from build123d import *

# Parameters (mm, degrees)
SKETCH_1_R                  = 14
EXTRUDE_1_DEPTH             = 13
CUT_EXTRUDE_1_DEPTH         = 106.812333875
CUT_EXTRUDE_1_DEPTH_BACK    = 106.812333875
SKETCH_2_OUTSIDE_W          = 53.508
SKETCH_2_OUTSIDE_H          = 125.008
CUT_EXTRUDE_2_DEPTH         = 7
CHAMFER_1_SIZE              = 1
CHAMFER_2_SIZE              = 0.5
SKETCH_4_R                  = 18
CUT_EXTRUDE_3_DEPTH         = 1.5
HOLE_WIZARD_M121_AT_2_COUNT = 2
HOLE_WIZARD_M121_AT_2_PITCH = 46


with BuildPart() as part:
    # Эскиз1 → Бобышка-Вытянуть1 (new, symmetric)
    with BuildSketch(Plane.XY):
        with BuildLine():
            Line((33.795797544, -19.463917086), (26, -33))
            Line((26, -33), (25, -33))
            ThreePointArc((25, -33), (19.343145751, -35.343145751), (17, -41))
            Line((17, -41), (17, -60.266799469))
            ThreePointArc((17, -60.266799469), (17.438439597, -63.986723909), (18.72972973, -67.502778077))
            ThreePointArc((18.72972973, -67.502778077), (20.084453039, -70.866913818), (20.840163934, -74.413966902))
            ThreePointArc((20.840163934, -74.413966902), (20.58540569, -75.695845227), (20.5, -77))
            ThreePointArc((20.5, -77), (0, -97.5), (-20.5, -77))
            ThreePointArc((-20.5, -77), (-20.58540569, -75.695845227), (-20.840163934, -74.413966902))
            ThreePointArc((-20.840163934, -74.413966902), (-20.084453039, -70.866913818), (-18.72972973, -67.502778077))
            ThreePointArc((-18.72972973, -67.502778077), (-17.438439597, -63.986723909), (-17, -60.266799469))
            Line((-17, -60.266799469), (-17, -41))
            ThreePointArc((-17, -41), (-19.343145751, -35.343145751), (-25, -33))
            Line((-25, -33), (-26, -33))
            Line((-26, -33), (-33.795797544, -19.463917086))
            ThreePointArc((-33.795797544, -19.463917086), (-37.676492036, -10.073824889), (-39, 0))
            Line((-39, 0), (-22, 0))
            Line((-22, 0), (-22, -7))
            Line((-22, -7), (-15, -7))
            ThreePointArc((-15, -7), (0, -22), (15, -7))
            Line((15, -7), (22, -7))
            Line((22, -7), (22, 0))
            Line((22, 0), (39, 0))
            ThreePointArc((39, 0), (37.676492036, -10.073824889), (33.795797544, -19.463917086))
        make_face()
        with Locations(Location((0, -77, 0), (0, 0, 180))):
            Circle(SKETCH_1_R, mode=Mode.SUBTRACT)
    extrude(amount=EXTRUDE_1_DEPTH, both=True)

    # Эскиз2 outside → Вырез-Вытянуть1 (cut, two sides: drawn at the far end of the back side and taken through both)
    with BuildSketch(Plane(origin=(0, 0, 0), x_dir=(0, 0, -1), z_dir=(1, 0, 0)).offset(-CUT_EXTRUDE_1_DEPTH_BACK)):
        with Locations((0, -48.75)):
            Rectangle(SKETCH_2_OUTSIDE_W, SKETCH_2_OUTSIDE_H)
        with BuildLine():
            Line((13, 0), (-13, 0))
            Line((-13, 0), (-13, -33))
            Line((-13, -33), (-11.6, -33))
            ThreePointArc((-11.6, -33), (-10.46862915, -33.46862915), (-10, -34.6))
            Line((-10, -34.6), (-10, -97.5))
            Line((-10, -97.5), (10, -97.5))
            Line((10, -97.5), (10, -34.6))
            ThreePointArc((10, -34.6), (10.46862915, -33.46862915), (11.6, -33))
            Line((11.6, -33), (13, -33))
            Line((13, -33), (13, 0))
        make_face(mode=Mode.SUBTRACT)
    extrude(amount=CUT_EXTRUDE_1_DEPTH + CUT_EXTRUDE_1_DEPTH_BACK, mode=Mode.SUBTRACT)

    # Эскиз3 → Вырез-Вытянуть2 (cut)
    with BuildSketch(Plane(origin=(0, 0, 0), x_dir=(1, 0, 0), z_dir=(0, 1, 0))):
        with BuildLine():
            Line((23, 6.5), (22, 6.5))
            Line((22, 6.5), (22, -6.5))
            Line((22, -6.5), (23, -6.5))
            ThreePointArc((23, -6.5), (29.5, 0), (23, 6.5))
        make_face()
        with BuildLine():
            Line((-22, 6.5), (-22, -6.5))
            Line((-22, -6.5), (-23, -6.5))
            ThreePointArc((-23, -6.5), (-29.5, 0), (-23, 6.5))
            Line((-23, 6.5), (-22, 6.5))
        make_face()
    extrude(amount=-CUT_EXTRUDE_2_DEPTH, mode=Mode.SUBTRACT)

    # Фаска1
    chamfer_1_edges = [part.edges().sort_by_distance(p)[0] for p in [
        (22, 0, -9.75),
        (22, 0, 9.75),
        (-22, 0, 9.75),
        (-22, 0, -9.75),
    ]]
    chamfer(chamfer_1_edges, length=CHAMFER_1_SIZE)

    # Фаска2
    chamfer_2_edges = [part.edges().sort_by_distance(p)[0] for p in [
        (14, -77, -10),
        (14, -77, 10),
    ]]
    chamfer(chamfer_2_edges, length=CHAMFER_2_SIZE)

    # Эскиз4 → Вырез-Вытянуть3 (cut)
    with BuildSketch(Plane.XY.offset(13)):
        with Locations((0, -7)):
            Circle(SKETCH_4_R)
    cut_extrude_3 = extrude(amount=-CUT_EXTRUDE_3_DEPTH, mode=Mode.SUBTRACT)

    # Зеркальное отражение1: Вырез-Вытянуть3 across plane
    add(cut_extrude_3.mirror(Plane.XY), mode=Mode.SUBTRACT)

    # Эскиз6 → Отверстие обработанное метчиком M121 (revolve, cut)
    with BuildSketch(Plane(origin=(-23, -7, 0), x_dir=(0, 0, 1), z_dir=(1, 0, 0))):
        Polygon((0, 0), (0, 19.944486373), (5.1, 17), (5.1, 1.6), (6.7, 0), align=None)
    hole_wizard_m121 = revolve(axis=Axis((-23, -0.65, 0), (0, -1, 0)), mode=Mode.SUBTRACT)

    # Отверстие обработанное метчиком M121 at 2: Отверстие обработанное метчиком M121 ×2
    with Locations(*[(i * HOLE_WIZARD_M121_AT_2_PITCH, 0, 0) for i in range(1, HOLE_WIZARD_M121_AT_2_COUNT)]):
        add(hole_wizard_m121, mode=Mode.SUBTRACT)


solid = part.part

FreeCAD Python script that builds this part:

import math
import FreeCAD as App
import Part
import Sketcher

V = App.Vector
Q = App.Units.Quantity


def edges_at(feature, points):
    """Names of the edges that pass closest to the given points."""
    edges = feature.Shape.Edges
    near = lambda p: min(range(len(edges)), key=lambda i: edges[i].distToShape(Part.Vertex(*p))[0])
    return sorted({f"Edge{near(p) + 1}" for p in points})


def add_polygon(sketch, points):
    """Adds a closed chain of lines whose ends are joined by coincident constraints."""
    first, n = sketch.GeometryCount, len(points)
    for a, b in zip(points, points[1:] + points[:1]):
        sketch.addGeometry(Part.LineSegment(App.Vector(*a, 0), App.Vector(*b, 0)), False)
    for i in range(n):
        sketch.addConstraint(Sketcher.Constraint("Coincident", first + i, 2, first + (i + 1) % n, 1))

doc = App.newDocument("Part")
params = doc.addObject("Spreadsheet::Sheet", "Params")
for row, (alias, value) in enumerate([
    ("sketch1_diameter", "28 mm"),
    ("sketch1_radius", "39 mm"),
    ("sketch1_radius2", "15 mm"),
    ("sketch1_radius3", "8 mm"),
    ("sketch1_radius4", "16 mm"),
    ("pad1_length", "26 mm"),
    ("sketch2_radius", "1.6 mm"),
    ("sketch2_width", "33 mm"),
    ("sketch2_height", "26 mm"),
    ("sketch2_height2", "20 mm"),
    ("sketch2_width2", "62.9 mm"),
    ("sketch3_radius", "6.5 mm"),
    ("sketch3_width", "1 mm"),
    ("pocket2_length", "7 mm"),
    ("chamfer_size", "1 mm"),
    ("chamfer2_size", "0.5 mm"),
    ("sketch4_diameter", "36 mm"),
    ("pocket3_length", "1.5 mm"),
    ("sketch5_width", "15.4 mm"),
    ("sketch5_height", "6.7 mm"),
    ("groove_angle", "360 deg"),
    ("linearpattern_pitch", "46 mm"),
], start=1):
    params.set(f"A{row}", alias)
    params.set(f"B{row}", "=" + value)
    params.setAlias(f"B{row}", alias)

body = doc.addObject("PartDesign::Body", "Body")

# Sketch on XY plane
sketch1 = body.newObject("Sketcher::SketchObject", "Sketch")
sketch1.AttachmentSupport = (doc.getObject("XY_Plane"), [""])
sketch1.MapMode = "FlatFace"
sketch1.addGeometry(Part.LineSegment(V(26, -33, 0), V(33.8, -19.5, 0)), False)
sketch1.addGeometry(Part.ArcOfCircle(Part.Circle(V(0, 0, 0), V(0, 0, 1), 39), math.radians(-30), math.radians(0)), False)
sketch1.addGeometry(Part.LineSegment(V(39, 0, 0), V(22, 0, 0)), False)
sketch1.addGeometry(Part.LineSegment(V(22, 0, 0), V(22, -7, 0)), False)
sketch1.addGeometry(Part.LineSegment(V(22, -7, 0), V(15, -7, 0)), False)
sketch1.addGeometry(Part.ArcOfCircle(Part.Circle(V(0, -7, 0), V(0, 0, 1), 15), math.radians(180), math.radians(360)), False)
sketch1.addGeometry(Part.LineSegment(V(-15, -7, 0), V(-22, -7, 0)), False)
sketch1.addGeometry(Part.LineSegment(V(-22, -7, 0), V(-22, 0, 0)), False)
sketch1.addGeometry(Part.LineSegment(V(-22, 0, 0), V(-39, 0, 0)), False)
sketch1.addGeometry(Part.ArcOfCircle(Part.Circle(V(0, 0, 0), V(0, 0, 1), 39), math.radians(180), math.radians(210)), False)
sketch1.addGeometry(Part.LineSegment(V(-33.8, -19.5, 0), V(-26, -33, 0)), False)
sketch1.addGeometry(Part.LineSegment(V(-26, -33, 0), V(-25, -33, 0)), False)
sketch1.addGeometry(Part.ArcOfCircle(Part.Circle(V(-25, -41, 0), V(0, 0, 1), 8), math.radians(0), math.radians(90)), False)
sketch1.addGeometry(Part.LineSegment(V(-17, -41, 0), V(-17, -60.3, 0)), False)
sketch1.addGeometry(Part.ArcOfCircle(Part.Circle(V(-33, -60.3, 0), V(0, 0, 1), 16), math.radians(-27), math.radians(0)), False)
sketch1.addGeometry(Part.ArcOfCircle(Part.Circle(V(0, -77, 0), V(0, 0, 1), 21), math.radians(153.11), math.radians(172.93)), False)
sketch1.addGeometry(Part.ArcOfCircle(Part.Circle(V(-30.5, -77, 0), V(0, 0, 1), 10), math.radians(0), math.radians(14.99)), False)
sketch1.addGeometry(Part.ArcOfCircle(Part.Circle(V(0, -77, 0), V(0, 0, 1), 20.5), math.radians(180), math.radians(360)), False)
sketch1.addGeometry(Part.ArcOfCircle(Part.Circle(V(30.5, -77, 0), V(0, 0, 1), 10), math.radians(165.01), math.radians(180)), False)
sketch1.addGeometry(Part.ArcOfCircle(Part.Circle(V(0, -77, 0), V(0, 0, 1), 21), math.radians(7.07), math.radians(26.89)), False)
sketch1.addGeometry(Part.ArcOfCircle(Part.Circle(V(33, -60.3, 0), V(0, 0, 1), 16), math.radians(180), math.radians(207)), False)
sketch1.addGeometry(Part.LineSegment(V(17, -60.3, 0), V(17, -41, 0)), False)
sketch1.addGeometry(Part.ArcOfCircle(Part.Circle(V(25, -41, 0), V(0, 0, 1), 8), math.radians(90), math.radians(180)), False)
sketch1.addGeometry(Part.LineSegment(V(25, -33, 0), V(26, -33, 0)), False)
sketch1.addGeometry(Part.Circle(V(0, -77, 0), V(0, 0, 1), 14), False)
sketch1.addConstraint(Sketcher.Constraint("Tangent", 0, 2, 1, 1))
sketch1.addConstraint(Sketcher.Constraint("Coincident", 1, 2, 2, 1))
sketch1.addConstraint(Sketcher.Constraint("Coincident", 2, 2, 3, 1))
sketch1.addConstraint(Sketcher.Constraint("Coincident", 3, 2, 4, 1))
sketch1.addConstraint(Sketcher.Constraint("Coincident", 4, 2, 5, 2))
sketch1.addConstraint(Sketcher.Constraint("Coincident", 5, 1, 6, 1))
sketch1.addConstraint(Sketcher.Constraint("Coincident", 6, 2, 7, 1))
sketch1.addConstraint(Sketcher.Constraint("Coincident", 7, 2, 8, 1))
sketch1.addConstraint(Sketcher.Constraint("Coincident", 8, 2, 9, 1))
sketch1.addConstraint(Sketcher.Constraint("Tangent", 9, 2, 10, 1))
sketch1.addConstraint(Sketcher.Constraint("Coincident", 10, 2, 11, 1))
sketch1.addConstraint(Sketcher.Constraint("Tangent", 11, 2, 12, 2))
sketch1.addConstraint(Sketcher.Constraint("Tangent", 12, 1, 13, 1))
sketch1.addConstraint(Sketcher.Constraint("Tangent", 13, 2, 14, 2))
sketch1.addConstraint(Sketcher.Constraint("Tangent", 14, 1, 15, 1))
sketch1.addConstraint(Sketcher.Constraint("Coincident", 15, 2, 16, 2))
sketch1.addConstraint(Sketcher.Constraint("Tangent", 16, 1, 17, 1))
sketch1.addConstraint(Sketcher.Constraint("Tangent", 17, 2, 18, 2))
sketch1.addConstraint(Sketcher.Constraint("Coincident", 18, 1, 19, 1))
sketch1.addConstraint(Sketcher.Constraint("Tangent", 19, 2, 20, 2))
sketch1.addConstraint(Sketcher.Constraint("Tangent", 20, 1, 21, 1))
sketch1.addConstraint(Sketcher.Constraint("Tangent", 21, 2, 22, 2))
sketch1.addConstraint(Sketcher.Constraint("Tangent", 22, 1, 23, 1))
sketch1.addConstraint(Sketcher.Constraint("Coincident", 23, 2, 0, 1))
sketch1.addConstraint(Sketcher.Constraint("Horizontal", 2))
sketch1.addConstraint(Sketcher.Constraint("Vertical", 3))
sketch1.addConstraint(Sketcher.Constraint("Horizontal", 4))
sketch1.addConstraint(Sketcher.Constraint("Horizontal", 6))
sketch1.addConstraint(Sketcher.Constraint("Vertical", 7))
sketch1.addConstraint(Sketcher.Constraint("Horizontal", 8))
sketch1.addConstraint(Sketcher.Constraint("Horizontal", 11))
sketch1.addConstraint(Sketcher.Constraint("Vertical", 13))
sketch1.addConstraint(Sketcher.Constraint("Vertical", 21))
sketch1.addConstraint(Sketcher.Constraint("Horizontal", 23))
sketch1.addConstraint(Sketcher.Constraint("Coincident", 1, 3, -1, 1))
sketch1.addConstraint(Sketcher.Constraint("Coincident", 9, 3, -1, 1))
sketch1.addConstraint(Sketcher.Constraint("Coincident", 17, 3, 15, 3))
sketch1.addConstraint(Sketcher.Constraint("Coincident", 19, 3, 15, 3))
sketch1.addConstraint(Sketcher.Constraint("Coincident", 24, 3, 15, 3))
sketch1.addConstraint(Sketcher.Constraint("Equal", 1, 9))
sketch1.addConstraint(Sketcher.Constraint("Equal", 16, 18))
sketch1.addConstraint(Sketcher.Constraint("Equal", 15, 19))
sketch1.addConstraint(Sketcher.Constraint("Equal", 14, 20))
sketch1.addConstraint(Sketcher.Constraint("Equal", 12, 22))
sketch1.addConstraint(Sketcher.Constraint("Symmetric", 2, 2, 7, 2, -1, 1))
sketch1.addConstraint(Sketcher.Constraint("Symmetric", 16, 3, 18, 3, -2))
sketch1.addConstraint(Sketcher.Constraint("Symmetric", 12, 3, 22, 3, -2))
sketch1.addConstraint(Sketcher.Constraint("Symmetric", 4, 2, 5, 1, -2))
sketch1.addConstraint(Sketcher.Constraint("PointOnObject", 1, 2, -1))
sketch1.addConstraint(Sketcher.Constraint("Horizontal", 15, 3, 16, 3))
sketch1.addConstraint(Sketcher.Constraint("Horizontal", 5, 3, 3, 2))
sketch1.addConstraint(Sketcher.Constraint("Horizontal", 0, 2, 9, 2))
sketch1.addConstraint(Sketcher.Constraint("Equal", 6, 3))
sketch1.addConstraint(Sketcher.Constraint("Diameter", 24, Q("28 mm")))
sketch1.addConstraint(Sketcher.Constraint("Radius", 1, Q("39 mm")))
sketch1.addConstraint(Sketcher.Constraint("Radius", 5, Q("15 mm")))
sketch1.addConstraint(Sketcher.Constraint("Radius", 12, Q("8 mm")))
sketch1.addConstraint(Sketcher.Constraint("Radius", 14, Q("16 mm")))
sketch1.addConstraint(Sketcher.Constraint("Radius", 15, Q("21 mm")))
sketch1.addConstraint(Sketcher.Constraint("Radius", 16, Q("10 mm")))
sketch1.addConstraint(Sketcher.Constraint("Radius", 17, Q("20.5 mm")))
sketch1.addConstraint(Sketcher.Constraint("DistanceX", 2, 2, 2, 1, Q("17 mm")))
sketch1.addConstraint(Sketcher.Constraint("DistanceX", 11, 1, 11, 2, Q("1 mm")))
sketch1.addConstraint(Sketcher.Constraint("DistanceX", 12, 3, -1, 1, Q("25 mm")))
sketch1.addConstraint(Sketcher.Constraint("DistanceY", 12, 3, -1, 1, Q("41 mm")))
sketch1.addConstraint(Sketcher.Constraint("DistanceY", 15, 3, -1, 1, Q("77 mm")))
sketch1.setExpression("Constraints[53]", "Params.sketch1_diameter")
sketch1.setExpression("Constraints[54]", "Params.sketch1_radius")
sketch1.setExpression("Constraints[55]", "Params.sketch1_radius2")
sketch1.setExpression("Constraints[56]", "Params.sketch1_radius3")
sketch1.setExpression("Constraints[57]", "Params.sketch1_radius4")
pad1 = body.newObject("PartDesign::Pad", "Pad")
pad1.Profile = sketch1
pad1.setExpression("Length", "Params.pad1_length")
pad1.Midplane = True

# Sketch on YZ plane
sketch2 = body.newObject("Sketcher::SketchObject", "Sketch001")
sketch2.AttachmentSupport = (doc.getObject("YZ_Plane"), [""])
sketch2.MapMode = "FlatFace"
add_polygon(sketch2, [(13.8, 26.8), (-111.3, 26.8), (-111.3, -26.8), (13.8, -26.8)])  # lines 0-3
sketch2.addGeometry(Part.LineSegment(V(0, 13, 0), V(0, -13, 0)), False)  # 4
sketch2.addGeometry(Part.LineSegment(V(0, -13, 0), V(-33, -13, 0)), False)  # 5
sketch2.addGeometry(Part.LineSegment(V(-33, -13, 0), V(-33, -11.6, 0)), False)  # 6
sketch2.addGeometry(Part.ArcOfCircle(Part.Circle(V(-34.6, -11.6, 0), V(0, 0, 1), 1.6), math.radians(0), math.radians(90)), False)  # 7
sketch2.addGeometry(Part.LineSegment(V(-34.6, -10, 0), V(-97.5, -10, 0)), False)  # 8
sketch2.addGeometry(Part.LineSegment(V(-97.5, -10, 0), V(-97.5, 10, 0)), False)  # 9
sketch2.addGeometry(Part.LineSegment(V(-97.5, 10, 0), V(-34.6, 10, 0)), False)  # 10
sketch2.addGeometry(Part.ArcOfCircle(Part.Circle(V(-34.6, 11.6, 0), V(0, 0, 1), 1.6), math.radians(-90), math.radians(0)), False)  # 11
sketch2.addGeometry(Part.LineSegment(V(-33, 11.6, 0), V(-33, 13, 0)), False)  # 12
sketch2.addGeometry(Part.LineSegment(V(-33, 13, 0), V(0, 13, 0)), False)  # 13
sketch2.addConstraint(Sketcher.Constraint("Coincident", 4, 2, 5, 1))
sketch2.addConstraint(Sketcher.Constraint("Coincident", 5, 2, 6, 1))
sketch2.addConstraint(Sketcher.Constraint("Tangent", 6, 2, 7, 1))
sketch2.addConstraint(Sketcher.Constraint("Tangent", 7, 2, 8, 1))
sketch2.addConstraint(Sketcher.Constraint("Coincident", 8, 2, 9, 1))
sketch2.addConstraint(Sketcher.Constraint("Coincident", 9, 2, 10, 1))
sketch2.addConstraint(Sketcher.Constraint("Tangent", 10, 2, 11, 1))
sketch2.addConstraint(Sketcher.Constraint("Tangent", 11, 2, 12, 1))
sketch2.addConstraint(Sketcher.Constraint("Coincident", 12, 2, 13, 1))
sketch2.addConstraint(Sketcher.Constraint("Coincident", 13, 2, 4, 1))
sketch2.addConstraint(Sketcher.Constraint("Horizontal", 0))
sketch2.addConstraint(Sketcher.Constraint("Vertical", 1))
sketch2.addConstraint(Sketcher.Constraint("Horizontal", 2))
sketch2.addConstraint(Sketcher.Constraint("Vertical", 3))
sketch2.addConstraint(Sketcher.Constraint("Vertical", 4))
sketch2.addConstraint(Sketcher.Constraint("Horizontal", 5))
sketch2.addConstraint(Sketcher.Constraint("Vertical", 6))
sketch2.addConstraint(Sketcher.Constraint("Horizontal", 8))
sketch2.addConstraint(Sketcher.Constraint("Vertical", 9))
sketch2.addConstraint(Sketcher.Constraint("Horizontal", 10))
sketch2.addConstraint(Sketcher.Constraint("Vertical", 12))
sketch2.addConstraint(Sketcher.Constraint("Horizontal", 13))
sketch2.addConstraint(Sketcher.Constraint("Equal", 7, 11))
sketch2.addConstraint(Sketcher.Constraint("Symmetric", 4, 2, 13, 2, -1, 1))
sketch2.addConstraint(Sketcher.Constraint("Symmetric", 7, 3, 11, 3, -1))
sketch2.addConstraint(Sketcher.Constraint("Radius", 7, Q("1.6 mm")))
sketch2.addConstraint(Sketcher.Constraint("DistanceX", 5, 2, 5, 1, Q("33 mm")))
sketch2.addConstraint(Sketcher.Constraint("DistanceY", 4, 2, 4, 1, Q("26 mm")))
sketch2.addConstraint(Sketcher.Constraint("DistanceY", 9, 1, 9, 2, Q("20 mm")))
sketch2.addConstraint(Sketcher.Constraint("DistanceX", 8, 2, 8, 1, Q("62.9 mm")))
sketch2.addConstraint(Sketcher.Constraint("DistanceX", 0, 2, 0, 1, Q("125.008 mm")))
sketch2.addConstraint(Sketcher.Constraint("DistanceY", 1, 2, 1, 1, Q("53.508 mm")))
sketch2.addConstraint(Sketcher.Constraint("DistanceX", 0, 2, -1, 1, Q("111.254 mm")))
sketch2.addConstraint(Sketcher.Constraint("DistanceY", -1, 1, 0, 2, Q("26.754 mm")))
sketch2.setExpression("Constraints[29]", "Params.sketch2_radius")
sketch2.setExpression("Constraints[30]", "Params.sketch2_width")
sketch2.setExpression("Constraints[31]", "Params.sketch2_height")
sketch2.setExpression("Constraints[32]", "Params.sketch2_height2")
sketch2.setExpression("Constraints[33]", "Params.sketch2_width2")
pocket1 = body.newObject("PartDesign::Pocket", "Pocket")
pocket1.Profile = sketch2
pocket1.Type = "ThroughAll"
pocket1.Midplane = True

# Sketch on XZ plane
sketch3 = body.newObject("Sketcher::SketchObject", "Sketch002")
sketch3.AttachmentSupport = (doc.getObject("XZ_Plane"), [""])
sketch3.MapMode = "FlatFace"
sketch3.addGeometry(Part.LineSegment(V(23, -6.5, 0), V(22, -6.5, 0)), False)
sketch3.addGeometry(Part.LineSegment(V(22, -6.5, 0), V(22, 6.5, 0)), False)
sketch3.addGeometry(Part.LineSegment(V(22, 6.5, 0), V(23, 6.5, 0)), False)
sketch3.addGeometry(Part.ArcOfCircle(Part.Circle(V(23, 0, 0), V(0, 0, 1), 6.5), math.radians(-90), math.radians(90)), False)
sketch3.addGeometry(Part.LineSegment(V(-22, 6.5, 0), V(-22, -6.5, 0)), False)
sketch3.addGeometry(Part.LineSegment(V(-22, -6.5, 0), V(-23, -6.5, 0)), False)
sketch3.addGeometry(Part.ArcOfCircle(Part.Circle(V(-23, 0, 0), V(0, 0, 1), 6.5), math.radians(90), math.radians(270)), False)
sketch3.addGeometry(Part.LineSegment(V(-23, 6.5, 0), V(-22, 6.5, 0)), False)
sketch3.addConstraint(Sketcher.Constraint("Coincident", 0, 2, 1, 1))
sketch3.addConstraint(Sketcher.Constraint("Coincident", 1, 2, 2, 1))
sketch3.addConstraint(Sketcher.Constraint("Tangent", 2, 2, 3, 2))
sketch3.addConstraint(Sketcher.Constraint("Tangent", 3, 1, 0, 1))
sketch3.addConstraint(Sketcher.Constraint("Coincident", 4, 2, 5, 1))
sketch3.addConstraint(Sketcher.Constraint("Tangent", 5, 2, 6, 2))
sketch3.addConstraint(Sketcher.Constraint("Tangent", 6, 1, 7, 1))
sketch3.addConstraint(Sketcher.Constraint("Coincident", 7, 2, 4, 1))
sketch3.addConstraint(Sketcher.Constraint("Horizontal", 0))
sketch3.addConstraint(Sketcher.Constraint("Vertical", 1))
sketch3.addConstraint(Sketcher.Constraint("Horizontal", 2))
sketch3.addConstraint(Sketcher.Constraint("Vertical", 4))
sketch3.addConstraint(Sketcher.Constraint("Horizontal", 5))
sketch3.addConstraint(Sketcher.Constraint("Horizontal", 7))
sketch3.addConstraint(Sketcher.Constraint("Equal", 3, 6))
sketch3.addConstraint(Sketcher.Constraint("Symmetric", 3, 3, 6, 3, -1, 1))
sketch3.addConstraint(Sketcher.Constraint("Symmetric", 0, 2, 4, 2, -2))
sketch3.addConstraint(Sketcher.Constraint("Radius", 3, Q("6.5 mm")))
sketch3.addConstraint(Sketcher.Constraint("DistanceX", 0, 2, 0, 1, Q("1 mm")))
sketch3.addConstraint(Sketcher.Constraint("DistanceX", -1, 1, 3, 3, Q("23 mm")))
sketch3.setExpression("Constraints[17]", "Params.sketch3_radius")
sketch3.setExpression("Constraints[18]", "Params.sketch3_width")
pocket2 = body.newObject("PartDesign::Pocket", "Pocket001")
pocket2.Profile = sketch3
pocket2.setExpression("Length", "Params.pocket2_length")
pocket2.Reversed = True
doc.recompute()

chamfer = body.newObject("PartDesign::Chamfer", "Chamfer")
chamfer.Base = (pocket2, edges_at(pocket2, [
    (22, 0, -9.75),
    (22, 0, 9.75),
    (-22, 0, 9.75),
    (-22, 0, -9.75),
]))
chamfer.setExpression("Size", "Params.chamfer_size")
doc.recompute()

chamfer2 = body.newObject("PartDesign::Chamfer", "Chamfer001")
chamfer2.Base = (chamfer, edges_at(chamfer, [(14, -77, -10), (14, -77, 10)]))
chamfer2.setExpression("Size", "Params.chamfer2_size")

# Sketch on XY plane
sketch4 = body.newObject("Sketcher::SketchObject", "Sketch003")
sketch4.AttachmentSupport = (doc.getObject("XY_Plane"), [""])
sketch4.MapMode = "FlatFace"
sketch4.AttachmentOffset = App.Placement(V(0, 0, 13), App.Rotation())
sketch4.addGeometry(Part.Circle(V(0, -7, 0), V(0, 0, 1), 18), False)
sketch4.addConstraint(Sketcher.Constraint("PointOnObject", 0, 3, -2))
sketch4.addConstraint(Sketcher.Constraint("Diameter", 0, Q("36 mm")))
sketch4.addConstraint(Sketcher.Constraint("DistanceY", 0, 3, -1, 1, Q("7 mm")))
sketch4.setExpression("Constraints[1]", "Params.sketch4_diameter")
pocket3 = body.newObject("PartDesign::Pocket", "Pocket002")
pocket3.Profile = sketch4
pocket3.setExpression("Length", "Params.pocket3_length")
doc.recompute()

mirrored = body.newObject("PartDesign::Mirrored", "Mirrored")
mirrored.Originals = [pocket3]
mirrored.MirrorPlane = (doc.getObject("XY_Plane"), [""])
body.Tip = mirrored

# Sketch on YZ plane
sketch5 = body.newObject("Sketcher::SketchObject", "Sketch004")
sketch5.AttachmentSupport = (doc.getObject("YZ_Plane"), [""])
sketch5.MapMode = "FlatFace"
sketch5.AttachmentOffset = App.Placement(V(0, 0, -23), App.Rotation())
add_polygon(sketch5, [(-26.9, 0), (-7, 0), (-7, 6.7), (-8.6, 5.1), (-24, 5.1)])  # lines 0-4
sketch5.addConstraint(Sketcher.Constraint("Horizontal", 0))
sketch5.addConstraint(Sketcher.Constraint("Vertical", 1))
sketch5.addConstraint(Sketcher.Constraint("Horizontal", 3))
sketch5.addConstraint(Sketcher.Constraint("PointOnObject", 0, 2, -1))
sketch5.addConstraint(Sketcher.Constraint("Angle", 2, Q("-135 deg")))
sketch5.addConstraint(Sketcher.Constraint("Angle", 4, Q("-120 deg")))
sketch5.addConstraint(Sketcher.Constraint("DistanceX", 3, 2, 3, 1, Q("15.4 mm")))
sketch5.addConstraint(Sketcher.Constraint("DistanceY", 1, 1, 1, 2, Q("6.7 mm")))
sketch5.addConstraint(Sketcher.Constraint("DistanceX", 0, 2, -1, 1, Q("7 mm")))
sketch5.addConstraint(Sketcher.Constraint("DistanceX", 3, 2, -1, 1, Q("24 mm")))
sketch5.setExpression("Constraints[11]", "Params.sketch5_width")
sketch5.setExpression("Constraints[12]", "Params.sketch5_height")
groove = body.newObject("PartDesign::Groove", "Groove")
groove.Profile = sketch5
groove.ReferenceAxis = (sketch5, ["H_Axis"])
groove.setExpression("Angle", "Params.groove_angle")
doc.recompute()

linearpattern = body.newObject("PartDesign::LinearPattern", "LinearPattern")
linearpattern.Originals = [groove]
linearpattern.Direction = (doc.getObject("X_Axis"), [""])
linearpattern.Mode = "offset"
linearpattern.setExpression("Offset", "Params.linearpattern_pitch")
linearpattern.Occurrences = 2
body.Tip = linearpattern

doc.recompute()
